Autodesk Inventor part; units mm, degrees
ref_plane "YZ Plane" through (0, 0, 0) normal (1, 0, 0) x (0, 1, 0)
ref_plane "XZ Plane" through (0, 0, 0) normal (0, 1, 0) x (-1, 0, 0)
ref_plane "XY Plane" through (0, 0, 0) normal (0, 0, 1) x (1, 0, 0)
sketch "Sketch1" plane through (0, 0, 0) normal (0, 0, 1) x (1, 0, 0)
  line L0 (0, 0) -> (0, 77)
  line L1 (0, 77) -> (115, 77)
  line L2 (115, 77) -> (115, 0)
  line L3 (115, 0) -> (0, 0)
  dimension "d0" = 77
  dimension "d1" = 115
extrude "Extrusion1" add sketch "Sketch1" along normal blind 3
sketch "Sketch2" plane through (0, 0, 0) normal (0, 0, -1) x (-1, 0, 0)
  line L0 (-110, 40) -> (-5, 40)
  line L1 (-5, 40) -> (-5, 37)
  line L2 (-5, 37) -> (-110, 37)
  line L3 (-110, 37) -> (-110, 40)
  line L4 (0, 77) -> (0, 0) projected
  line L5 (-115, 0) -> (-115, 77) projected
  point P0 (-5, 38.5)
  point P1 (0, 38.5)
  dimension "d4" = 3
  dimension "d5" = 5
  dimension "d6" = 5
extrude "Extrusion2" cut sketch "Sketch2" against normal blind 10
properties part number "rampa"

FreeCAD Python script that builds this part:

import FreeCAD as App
import Part
import Sketcher
from FreeCAD import Vector
Q = App.Units.Quantity

doc = App.newDocument("Part")
body = doc.addObject("PartDesign::Body", "Body")

sketch1 = body.newObject("Sketcher::SketchObject", "Sketch")
sketch1.AttachmentSupport = (doc.getObject("XY_Plane"), [""])
sketch1.MapMode = "FlatFace"
sketch1.addGeometry([
    Part.LineSegment(Vector(0, 77, 0), Vector(0, 0, 0)),
    Part.LineSegment(Vector(0, 0, 0), Vector(115, 0, 0)),
    Part.LineSegment(Vector(115, 0, 0), Vector(115, 77, 0)),
    Part.LineSegment(Vector(115, 77, 0), Vector(0, 77, 0)),
], False)
sketch1.addConstraint([
    Sketcher.Constraint("Coincident", 0, 2, 1, 1),
    Sketcher.Constraint("Coincident", 1, 2, 2, 1),
    Sketcher.Constraint("Coincident", 2, 2, 3, 1),
    Sketcher.Constraint("Coincident", 3, 2, 0, 1),
    Sketcher.Constraint("Vertical", 0),
    Sketcher.Constraint("Horizontal", 1),
    Sketcher.Constraint("Vertical", 2),
    Sketcher.Constraint("Horizontal", 3),
    Sketcher.Constraint("Coincident", 0, 2, -1, 1),
    Sketcher.Constraint("DistanceX", 1, 1, 1, 2, Q("115 mm")),
    Sketcher.Constraint("DistanceY", 0, 2, 0, 1, Q("77 mm")),
])
pad1 = body.newObject("PartDesign::Pad", "Pad")
pad1.Profile = sketch1
pad1.Length = 3

sketch2 = body.newObject("Sketcher::SketchObject", "Sketch001")
sketch2.AttachmentSupport = (doc.getObject("XY_Plane"), [""])
sketch2.MapMode = "FlatFace"
sketch2.addGeometry([
    Part.LineSegment(Vector(5, 40, 0), Vector(110, 40, 0)),
    Part.LineSegment(Vector(110, 40, 0), Vector(110, 37, 0)),
    Part.LineSegment(Vector(110, 37, 0), Vector(5, 37, 0)),
    Part.LineSegment(Vector(5, 37, 0), Vector(5, 40, 0)),
], False)
sketch2.addConstraint([
    Sketcher.Constraint("Coincident", 0, 2, 1, 1),
    Sketcher.Constraint("Coincident", 1, 2, 2, 1),
    Sketcher.Constraint("Coincident", 2, 2, 3, 1),
    Sketcher.Constraint("Coincident", 3, 2, 0, 1),
    Sketcher.Constraint("Horizontal", 0),
    Sketcher.Constraint("Vertical", 1),
    Sketcher.Constraint("Horizontal", 2),
    Sketcher.Constraint("Vertical", 3),
    Sketcher.Constraint("DistanceY", 1, 2, 1, 1, Q("3 mm")),
    Sketcher.Constraint("DistanceX", -1, 1, 2, 2, Q("5 mm")),
    Sketcher.Constraint("DistanceX", 0, 1, 0, 2, Q("105 mm")),
    Sketcher.Constraint("DistanceY", -1, 1, 0, 2, Q("40 mm")),
])
pocket1 = body.newObject("PartDesign::Pocket", "Pocket")
pocket1.Profile = sketch2
pocket1.Length = 10
pocket1.Reversed = True

doc.recompute()
